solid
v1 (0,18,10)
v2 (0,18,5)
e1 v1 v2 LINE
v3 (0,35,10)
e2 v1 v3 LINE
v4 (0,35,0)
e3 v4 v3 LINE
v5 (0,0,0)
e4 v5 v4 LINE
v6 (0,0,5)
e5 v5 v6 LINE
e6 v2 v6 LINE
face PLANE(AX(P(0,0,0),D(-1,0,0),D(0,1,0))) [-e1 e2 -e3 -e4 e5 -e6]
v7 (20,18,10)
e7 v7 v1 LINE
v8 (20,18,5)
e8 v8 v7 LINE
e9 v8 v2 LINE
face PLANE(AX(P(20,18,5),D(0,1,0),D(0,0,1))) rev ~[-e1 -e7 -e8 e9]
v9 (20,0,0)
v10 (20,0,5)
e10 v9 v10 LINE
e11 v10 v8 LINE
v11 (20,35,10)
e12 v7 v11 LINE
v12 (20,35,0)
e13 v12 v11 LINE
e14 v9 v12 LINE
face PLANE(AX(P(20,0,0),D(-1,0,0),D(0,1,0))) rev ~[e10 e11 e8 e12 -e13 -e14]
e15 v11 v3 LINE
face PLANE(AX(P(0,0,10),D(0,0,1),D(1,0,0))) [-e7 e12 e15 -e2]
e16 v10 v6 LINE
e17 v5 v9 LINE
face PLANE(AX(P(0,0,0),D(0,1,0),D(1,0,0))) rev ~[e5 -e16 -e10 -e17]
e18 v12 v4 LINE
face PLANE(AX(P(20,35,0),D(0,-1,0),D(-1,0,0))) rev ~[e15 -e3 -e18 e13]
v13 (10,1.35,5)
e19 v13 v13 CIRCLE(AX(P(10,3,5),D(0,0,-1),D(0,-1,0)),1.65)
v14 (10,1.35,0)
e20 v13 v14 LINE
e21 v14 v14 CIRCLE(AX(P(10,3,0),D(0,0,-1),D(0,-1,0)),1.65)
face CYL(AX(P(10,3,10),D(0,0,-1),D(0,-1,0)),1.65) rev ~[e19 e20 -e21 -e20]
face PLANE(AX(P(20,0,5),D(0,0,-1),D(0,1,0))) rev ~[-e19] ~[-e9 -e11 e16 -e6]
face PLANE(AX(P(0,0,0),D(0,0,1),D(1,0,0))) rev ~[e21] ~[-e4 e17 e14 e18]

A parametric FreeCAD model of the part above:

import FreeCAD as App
import Part
import Sketcher
from FreeCAD import Vector
Q = App.Units.Quantity

doc = App.newDocument("Part")
body = doc.addObject("PartDesign::Body", "Body")

sketch1 = body.newObject("Sketcher::SketchObject", "Sketch")
sketch1.AttachmentSupport = (doc.getObject("XY_Plane"), [""])
sketch1.MapMode = "FlatFace"
sketch1.addGeometry(Part.LineSegment(Vector(0, 35, 0), Vector(0, 0, 0)), False)
sketch1.addGeometry(Part.LineSegment(Vector(0, 0, 0), Vector(20, 0, 0)), False)
sketch1.addGeometry(Part.LineSegment(Vector(20, 0, 0), Vector(20, 35, 0)), False)
sketch1.addGeometry(Part.LineSegment(Vector(20, 35, 0), Vector(0, 35, 0)), False)
sketch1.addConstraint(Sketcher.Constraint("Coincident", 0, 2, 1, 1))
sketch1.addConstraint(Sketcher.Constraint("Coincident", 1, 2, 2, 1))
sketch1.addConstraint(Sketcher.Constraint("Coincident", 2, 2, 3, 1))
sketch1.addConstraint(Sketcher.Constraint("Coincident", 3, 2, 0, 1))
sketch1.addConstraint(Sketcher.Constraint("Vertical", 0))
sketch1.addConstraint(Sketcher.Constraint("Horizontal", 1))
sketch1.addConstraint(Sketcher.Constraint("Vertical", 2))
sketch1.addConstraint(Sketcher.Constraint("Horizontal", 3))
sketch1.addConstraint(Sketcher.Constraint("Coincident", 0, 2, -1, 1))
sketch1.addConstraint(Sketcher.Constraint("DistanceX", 1, 1, 1, 2, Q("20 mm")))
sketch1.addConstraint(Sketcher.Constraint("DistanceY", 0, 2, 0, 1, Q("35 mm")))
pad1 = body.newObject("PartDesign::Pad", "Pad")
pad1.Profile = sketch1
pad1.Length = 10

sketch2 = body.newObject("Sketcher::SketchObject", "Sketch001")
sketch2.AttachmentSupport = (doc.getObject("XY_Plane"), [""])
sketch2.MapMode = "FlatFace"
sketch2.AttachmentOffset = App.Placement(Vector(0, 0, 10), App.Rotation())
sketch2.addGeometry(Part.Circle(Vector(10, 3, 0), Vector(0, 0, 1), 1.6), False)
sketch2.addConstraint(Sketcher.Constraint("Diameter", 0, Q("3.3 mm")))
sketch2.addConstraint(Sketcher.Constraint("DistanceX", -1, 1, 0, 3, Q("10 mm")))
sketch2.addConstraint(Sketcher.Constraint("DistanceY", -1, 1, 0, 3, Q("3 mm")))
doc.recompute()
hole = body.newObject("PartDesign::Hole", "Hole")
hole.Profile = sketch2
hole.ThreadType = "None"
hole.Diameter = 3.3
hole.DepthType = "ThroughAll"

sketch3 = body.newObject("Sketcher::SketchObject", "Sketch002")
sketch3.AttachmentSupport = (doc.getObject("YZ_Plane"), [""])
sketch3.MapMode = "FlatFace"
sketch3.AttachmentOffset = App.Placement(Vector(0, 0, 20), App.Rotation())
sketch3.addGeometry(Part.LineSegment(Vector(18, 10, 0), Vector(0, 10, 0)), False)
sketch3.addGeometry(Part.LineSegment(Vector(0, 10, 0), Vector(0, 5, 0)), False)
sketch3.addGeometry(Part.LineSegment(Vector(0, 5, 0), Vector(18, 5, 0)), False)
sketch3.addGeometry(Part.LineSegment(Vector(18, 5, 0), Vector(18, 10, 0)), False)
sketch3.addConstraint(Sketcher.Constraint("Coincident", 0, 2, 1, 1))
sketch3.addConstraint(Sketcher.Constraint("Coincident", 1, 2, 2, 1))
sketch3.addConstraint(Sketcher.Constraint("Coincident", 2, 2, 3, 1))
sketch3.addConstraint(Sketcher.Constraint("Coincident", 3, 2, 0, 1))
sketch3.addConstraint(Sketcher.Constraint("Horizontal", 0))
sketch3.addConstraint(Sketcher.Constraint("Vertical", 1))
sketch3.addConstraint(Sketcher.Constraint("Horizontal", 2))
sketch3.addConstraint(Sketcher.Constraint("Vertical", 3))
sketch3.addConstraint(Sketcher.Constraint("PointOnObject", 0, 2, -2))
sketch3.addConstraint(Sketcher.Constraint("DistanceX", 0, 2, 0, 1, Q("18 mm")))
sketch3.addConstraint(Sketcher.Constraint("DistanceY", 1, 2, 1, 1, Q("5 mm")))
sketch3.addConstraint(Sketcher.Constraint("DistanceY", -1, 1, 1, 2, Q("5 mm")))
pocket1 = body.newObject("PartDesign::Pocket", "Pocket")
pocket1.Profile = sketch3
pocket1.Type = "ThroughAll"

doc.recompute()
